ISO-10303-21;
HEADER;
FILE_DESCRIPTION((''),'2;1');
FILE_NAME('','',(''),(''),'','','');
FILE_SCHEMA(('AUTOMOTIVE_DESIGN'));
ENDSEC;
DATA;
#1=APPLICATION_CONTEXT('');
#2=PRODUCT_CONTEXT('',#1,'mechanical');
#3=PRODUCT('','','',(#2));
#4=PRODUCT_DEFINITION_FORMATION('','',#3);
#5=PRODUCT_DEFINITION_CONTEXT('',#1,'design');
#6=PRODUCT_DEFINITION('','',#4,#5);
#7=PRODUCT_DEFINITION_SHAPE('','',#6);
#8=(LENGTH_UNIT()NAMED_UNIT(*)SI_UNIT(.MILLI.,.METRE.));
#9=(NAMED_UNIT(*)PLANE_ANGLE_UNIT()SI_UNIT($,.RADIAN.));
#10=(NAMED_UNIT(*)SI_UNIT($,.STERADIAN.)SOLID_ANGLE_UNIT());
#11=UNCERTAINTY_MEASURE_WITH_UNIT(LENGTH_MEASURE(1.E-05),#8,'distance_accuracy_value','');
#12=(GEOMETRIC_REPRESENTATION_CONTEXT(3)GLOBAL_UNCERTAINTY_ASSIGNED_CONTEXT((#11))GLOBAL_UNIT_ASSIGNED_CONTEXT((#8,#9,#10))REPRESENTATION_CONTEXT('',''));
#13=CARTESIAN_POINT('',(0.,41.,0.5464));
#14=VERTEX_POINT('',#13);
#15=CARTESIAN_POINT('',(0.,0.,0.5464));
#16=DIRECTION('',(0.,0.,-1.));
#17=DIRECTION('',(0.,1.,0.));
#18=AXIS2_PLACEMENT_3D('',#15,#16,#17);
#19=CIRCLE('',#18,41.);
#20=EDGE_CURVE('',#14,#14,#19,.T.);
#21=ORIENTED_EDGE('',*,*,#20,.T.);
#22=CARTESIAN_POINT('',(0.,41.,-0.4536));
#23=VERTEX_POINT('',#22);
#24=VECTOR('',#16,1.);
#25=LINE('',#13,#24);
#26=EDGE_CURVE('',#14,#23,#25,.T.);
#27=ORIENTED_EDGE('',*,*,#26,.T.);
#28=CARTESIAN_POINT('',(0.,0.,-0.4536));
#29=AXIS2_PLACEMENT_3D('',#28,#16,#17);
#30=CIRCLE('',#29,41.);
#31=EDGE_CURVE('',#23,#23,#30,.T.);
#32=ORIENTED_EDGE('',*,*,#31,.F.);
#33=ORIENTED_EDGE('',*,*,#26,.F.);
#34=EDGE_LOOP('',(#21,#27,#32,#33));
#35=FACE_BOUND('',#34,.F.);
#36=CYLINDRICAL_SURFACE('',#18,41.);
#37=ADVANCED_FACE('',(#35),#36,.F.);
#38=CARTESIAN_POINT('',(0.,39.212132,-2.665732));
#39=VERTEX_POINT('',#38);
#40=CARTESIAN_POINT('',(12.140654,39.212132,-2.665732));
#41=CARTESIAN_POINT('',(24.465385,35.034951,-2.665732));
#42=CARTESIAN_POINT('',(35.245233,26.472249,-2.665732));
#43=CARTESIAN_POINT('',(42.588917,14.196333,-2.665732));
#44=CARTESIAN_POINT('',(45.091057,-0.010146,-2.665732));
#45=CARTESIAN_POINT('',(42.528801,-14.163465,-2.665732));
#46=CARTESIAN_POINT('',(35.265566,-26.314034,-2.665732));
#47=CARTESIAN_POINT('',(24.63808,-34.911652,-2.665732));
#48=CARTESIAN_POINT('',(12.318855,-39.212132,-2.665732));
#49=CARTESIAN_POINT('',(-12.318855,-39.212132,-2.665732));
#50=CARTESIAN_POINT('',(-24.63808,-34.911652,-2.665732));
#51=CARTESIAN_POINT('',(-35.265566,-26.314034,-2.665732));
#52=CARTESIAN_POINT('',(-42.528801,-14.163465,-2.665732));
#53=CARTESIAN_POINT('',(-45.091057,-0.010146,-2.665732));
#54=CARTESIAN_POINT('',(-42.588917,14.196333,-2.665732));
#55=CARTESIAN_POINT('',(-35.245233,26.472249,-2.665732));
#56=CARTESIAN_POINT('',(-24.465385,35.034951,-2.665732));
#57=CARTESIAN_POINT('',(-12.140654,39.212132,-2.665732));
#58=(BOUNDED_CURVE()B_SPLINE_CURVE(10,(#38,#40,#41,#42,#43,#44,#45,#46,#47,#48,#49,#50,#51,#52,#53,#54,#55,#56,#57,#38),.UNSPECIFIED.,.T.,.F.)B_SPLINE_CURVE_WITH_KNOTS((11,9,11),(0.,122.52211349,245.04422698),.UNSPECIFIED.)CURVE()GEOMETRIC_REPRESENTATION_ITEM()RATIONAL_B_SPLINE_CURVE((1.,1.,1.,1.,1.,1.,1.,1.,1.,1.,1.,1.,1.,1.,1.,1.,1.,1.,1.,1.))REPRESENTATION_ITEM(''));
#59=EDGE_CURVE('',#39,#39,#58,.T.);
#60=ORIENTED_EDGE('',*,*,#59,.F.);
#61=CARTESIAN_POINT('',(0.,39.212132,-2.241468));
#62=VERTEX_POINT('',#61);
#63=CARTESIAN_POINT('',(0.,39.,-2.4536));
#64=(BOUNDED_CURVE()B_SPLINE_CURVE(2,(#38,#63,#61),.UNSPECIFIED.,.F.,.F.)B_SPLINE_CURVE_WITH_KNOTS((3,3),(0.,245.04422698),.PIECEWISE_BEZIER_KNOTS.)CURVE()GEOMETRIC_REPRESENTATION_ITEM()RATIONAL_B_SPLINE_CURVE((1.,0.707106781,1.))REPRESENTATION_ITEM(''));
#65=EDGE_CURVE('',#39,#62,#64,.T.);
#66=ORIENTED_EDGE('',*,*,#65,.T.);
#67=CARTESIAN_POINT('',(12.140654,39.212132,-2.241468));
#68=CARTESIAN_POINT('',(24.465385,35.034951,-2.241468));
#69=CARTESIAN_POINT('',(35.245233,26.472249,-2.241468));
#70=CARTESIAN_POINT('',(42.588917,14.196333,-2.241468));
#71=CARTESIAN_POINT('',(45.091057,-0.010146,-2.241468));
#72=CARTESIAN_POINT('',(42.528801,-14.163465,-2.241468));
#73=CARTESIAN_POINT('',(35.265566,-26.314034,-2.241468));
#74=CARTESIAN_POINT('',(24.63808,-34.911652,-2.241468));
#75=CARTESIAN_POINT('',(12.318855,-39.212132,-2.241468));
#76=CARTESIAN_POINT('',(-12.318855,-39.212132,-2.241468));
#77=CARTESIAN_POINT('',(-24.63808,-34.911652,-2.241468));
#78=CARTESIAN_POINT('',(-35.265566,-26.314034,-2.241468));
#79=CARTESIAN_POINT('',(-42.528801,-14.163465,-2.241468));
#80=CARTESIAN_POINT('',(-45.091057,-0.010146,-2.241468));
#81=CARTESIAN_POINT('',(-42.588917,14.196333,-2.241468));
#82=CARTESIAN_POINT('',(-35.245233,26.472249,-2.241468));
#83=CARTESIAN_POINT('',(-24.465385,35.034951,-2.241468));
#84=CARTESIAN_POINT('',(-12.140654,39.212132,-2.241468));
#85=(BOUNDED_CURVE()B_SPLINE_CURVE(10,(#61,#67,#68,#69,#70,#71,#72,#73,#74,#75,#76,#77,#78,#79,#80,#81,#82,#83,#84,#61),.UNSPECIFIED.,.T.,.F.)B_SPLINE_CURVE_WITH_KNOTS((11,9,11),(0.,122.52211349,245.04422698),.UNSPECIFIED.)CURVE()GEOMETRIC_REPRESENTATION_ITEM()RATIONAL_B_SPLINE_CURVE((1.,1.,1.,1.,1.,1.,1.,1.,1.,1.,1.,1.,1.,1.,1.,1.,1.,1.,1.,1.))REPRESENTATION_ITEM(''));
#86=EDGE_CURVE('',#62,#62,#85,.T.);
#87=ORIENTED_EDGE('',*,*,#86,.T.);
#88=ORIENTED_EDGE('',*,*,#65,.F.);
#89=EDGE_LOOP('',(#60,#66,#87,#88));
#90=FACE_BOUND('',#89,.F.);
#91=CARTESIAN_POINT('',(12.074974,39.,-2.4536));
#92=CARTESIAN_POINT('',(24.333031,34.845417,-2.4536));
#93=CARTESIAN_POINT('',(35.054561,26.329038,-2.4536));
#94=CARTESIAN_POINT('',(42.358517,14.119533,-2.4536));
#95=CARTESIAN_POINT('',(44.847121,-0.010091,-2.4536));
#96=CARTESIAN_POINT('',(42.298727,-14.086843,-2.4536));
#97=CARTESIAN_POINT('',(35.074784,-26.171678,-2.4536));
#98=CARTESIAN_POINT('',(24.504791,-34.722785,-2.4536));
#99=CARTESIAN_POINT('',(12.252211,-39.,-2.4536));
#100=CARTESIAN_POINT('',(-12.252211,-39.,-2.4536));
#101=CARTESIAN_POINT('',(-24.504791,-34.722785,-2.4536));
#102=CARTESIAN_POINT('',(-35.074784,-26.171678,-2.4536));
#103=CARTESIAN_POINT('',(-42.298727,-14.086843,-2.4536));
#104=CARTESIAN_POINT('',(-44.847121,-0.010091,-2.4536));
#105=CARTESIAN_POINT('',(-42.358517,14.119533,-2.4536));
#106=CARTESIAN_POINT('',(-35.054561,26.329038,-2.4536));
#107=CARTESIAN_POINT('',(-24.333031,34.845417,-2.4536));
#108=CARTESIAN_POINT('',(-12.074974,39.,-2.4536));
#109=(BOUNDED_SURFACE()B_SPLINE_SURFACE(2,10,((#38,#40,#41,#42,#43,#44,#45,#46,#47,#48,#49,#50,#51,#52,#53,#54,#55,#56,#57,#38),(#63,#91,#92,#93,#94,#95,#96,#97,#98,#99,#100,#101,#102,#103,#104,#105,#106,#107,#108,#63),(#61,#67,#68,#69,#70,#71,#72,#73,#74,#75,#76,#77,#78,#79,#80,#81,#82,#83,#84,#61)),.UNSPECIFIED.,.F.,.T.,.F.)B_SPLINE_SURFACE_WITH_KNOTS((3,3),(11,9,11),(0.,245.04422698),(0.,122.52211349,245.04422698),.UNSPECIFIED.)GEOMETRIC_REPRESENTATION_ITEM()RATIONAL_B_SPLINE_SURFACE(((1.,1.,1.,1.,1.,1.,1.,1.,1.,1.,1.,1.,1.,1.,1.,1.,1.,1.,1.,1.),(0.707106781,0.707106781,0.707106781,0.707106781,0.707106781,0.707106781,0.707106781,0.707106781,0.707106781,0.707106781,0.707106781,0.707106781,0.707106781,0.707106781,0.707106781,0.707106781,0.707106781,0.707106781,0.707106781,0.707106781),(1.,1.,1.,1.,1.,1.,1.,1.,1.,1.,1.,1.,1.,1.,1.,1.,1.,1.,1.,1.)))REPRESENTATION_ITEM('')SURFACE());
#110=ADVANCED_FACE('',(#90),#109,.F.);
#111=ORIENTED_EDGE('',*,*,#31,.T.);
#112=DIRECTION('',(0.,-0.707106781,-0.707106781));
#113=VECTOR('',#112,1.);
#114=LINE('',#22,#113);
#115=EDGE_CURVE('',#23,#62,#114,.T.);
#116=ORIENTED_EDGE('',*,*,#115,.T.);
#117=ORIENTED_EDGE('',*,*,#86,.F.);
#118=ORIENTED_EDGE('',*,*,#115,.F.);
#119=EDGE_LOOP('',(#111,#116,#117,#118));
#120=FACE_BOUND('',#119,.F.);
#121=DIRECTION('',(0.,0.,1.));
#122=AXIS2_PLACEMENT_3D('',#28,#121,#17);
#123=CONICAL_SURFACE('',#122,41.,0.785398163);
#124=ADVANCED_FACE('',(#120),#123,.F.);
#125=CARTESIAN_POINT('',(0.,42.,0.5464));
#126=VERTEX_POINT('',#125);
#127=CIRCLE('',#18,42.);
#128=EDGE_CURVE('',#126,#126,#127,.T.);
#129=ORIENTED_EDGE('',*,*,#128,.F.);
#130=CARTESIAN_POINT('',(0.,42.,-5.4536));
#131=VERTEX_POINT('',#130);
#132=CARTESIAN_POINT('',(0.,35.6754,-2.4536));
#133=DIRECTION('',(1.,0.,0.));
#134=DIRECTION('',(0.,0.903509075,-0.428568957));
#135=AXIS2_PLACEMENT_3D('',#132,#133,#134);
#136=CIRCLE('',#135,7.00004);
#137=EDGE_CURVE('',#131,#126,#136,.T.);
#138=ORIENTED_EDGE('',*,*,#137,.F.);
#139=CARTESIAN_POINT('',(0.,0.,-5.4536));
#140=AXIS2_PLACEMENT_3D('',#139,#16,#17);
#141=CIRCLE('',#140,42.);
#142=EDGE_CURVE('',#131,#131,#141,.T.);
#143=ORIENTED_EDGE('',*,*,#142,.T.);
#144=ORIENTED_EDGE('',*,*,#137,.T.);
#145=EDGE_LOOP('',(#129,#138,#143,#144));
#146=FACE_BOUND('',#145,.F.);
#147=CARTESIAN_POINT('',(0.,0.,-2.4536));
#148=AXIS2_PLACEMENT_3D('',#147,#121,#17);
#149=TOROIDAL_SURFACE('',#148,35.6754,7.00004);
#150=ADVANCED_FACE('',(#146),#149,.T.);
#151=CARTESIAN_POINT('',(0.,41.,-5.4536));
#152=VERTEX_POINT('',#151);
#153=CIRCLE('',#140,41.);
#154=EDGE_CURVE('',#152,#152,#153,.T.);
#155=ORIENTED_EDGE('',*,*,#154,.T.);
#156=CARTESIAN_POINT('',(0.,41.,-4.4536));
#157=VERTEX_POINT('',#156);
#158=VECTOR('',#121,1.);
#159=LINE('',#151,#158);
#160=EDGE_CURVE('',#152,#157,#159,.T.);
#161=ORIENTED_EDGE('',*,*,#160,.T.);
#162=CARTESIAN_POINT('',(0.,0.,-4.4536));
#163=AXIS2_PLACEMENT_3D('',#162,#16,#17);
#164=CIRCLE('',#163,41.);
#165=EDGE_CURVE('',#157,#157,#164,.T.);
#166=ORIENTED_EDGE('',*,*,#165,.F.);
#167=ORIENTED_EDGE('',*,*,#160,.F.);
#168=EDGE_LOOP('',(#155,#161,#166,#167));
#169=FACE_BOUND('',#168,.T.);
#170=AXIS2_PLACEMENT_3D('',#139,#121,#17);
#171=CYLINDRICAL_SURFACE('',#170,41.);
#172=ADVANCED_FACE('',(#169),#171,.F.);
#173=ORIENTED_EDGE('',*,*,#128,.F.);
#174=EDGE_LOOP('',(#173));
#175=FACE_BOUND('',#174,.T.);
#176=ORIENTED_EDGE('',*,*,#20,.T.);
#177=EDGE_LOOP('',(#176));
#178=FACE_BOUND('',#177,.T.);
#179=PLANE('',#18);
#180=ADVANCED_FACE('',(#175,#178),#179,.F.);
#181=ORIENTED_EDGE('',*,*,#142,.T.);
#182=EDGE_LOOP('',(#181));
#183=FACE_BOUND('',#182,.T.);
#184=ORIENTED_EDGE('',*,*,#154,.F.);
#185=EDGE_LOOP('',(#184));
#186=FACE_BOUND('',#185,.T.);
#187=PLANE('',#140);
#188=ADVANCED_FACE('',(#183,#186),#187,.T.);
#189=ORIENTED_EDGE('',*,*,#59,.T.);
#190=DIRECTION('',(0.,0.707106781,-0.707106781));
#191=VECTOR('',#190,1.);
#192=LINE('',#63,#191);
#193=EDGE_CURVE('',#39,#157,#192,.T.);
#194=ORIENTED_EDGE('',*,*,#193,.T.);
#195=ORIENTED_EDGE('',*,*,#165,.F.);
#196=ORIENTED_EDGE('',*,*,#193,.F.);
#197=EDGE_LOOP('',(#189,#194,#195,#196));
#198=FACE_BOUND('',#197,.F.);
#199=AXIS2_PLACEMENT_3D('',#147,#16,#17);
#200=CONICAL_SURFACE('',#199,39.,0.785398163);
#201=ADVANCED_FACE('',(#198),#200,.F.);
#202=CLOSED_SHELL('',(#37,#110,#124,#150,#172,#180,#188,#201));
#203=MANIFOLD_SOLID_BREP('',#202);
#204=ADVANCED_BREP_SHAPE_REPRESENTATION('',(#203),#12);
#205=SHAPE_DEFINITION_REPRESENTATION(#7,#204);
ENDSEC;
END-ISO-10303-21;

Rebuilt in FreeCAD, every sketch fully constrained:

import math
import FreeCAD as App
import Part
import Sketcher
Q = App.Units.Quantity


def edges_at(feature, points):
    """Names of the edges that pass closest to the given points."""
    edges = feature.Shape.Edges
    near = lambda p: min(range(len(edges)), key=lambda i: edges[i].distToShape(Part.Vertex(*p))[0])
    return sorted({f"Edge{near(p) + 1}" for p in points})

doc = App.newDocument("Part")
params = doc.addObject("Spreadsheet::Sheet", "Params")
for row, (alias, value) in enumerate([
    ("sketch1_radius", "7 mm"),
    ("sketch1_width", "1 mm"),
    ("revolution_angle", "360 deg"),
    ("fillet_radius", "0.3 mm"),
], start=1):
    params.set(f"A{row}", alias)
    params.set(f"B{row}", "=" + value)
    params.setAlias(f"B{row}", alias)

body = doc.addObject("PartDesign::Body", "Body")

sketch1 = body.newObject("Sketcher::SketchObject", "Sketch")
sketch1.AttachmentSupport = (doc.getObject("YZ_Plane"), [""])
sketch1.MapMode = "FlatFace"
sketch1.addGeometry([
    Part.LineSegment(App.Vector(42, 0.5, 0), App.Vector(41, 0.5, 0)),
    Part.LineSegment(App.Vector(41, 0.5, 0), App.Vector(41, -0.5, 0)),
    Part.LineSegment(App.Vector(41, -0.5, 0), App.Vector(39, -2.5, 0)),
    Part.LineSegment(App.Vector(39, -2.5, 0), App.Vector(41, -4.5, 0)),
    Part.LineSegment(App.Vector(41, -4.5, 0), App.Vector(41, -5.5, 0)),
    Part.LineSegment(App.Vector(41, -5.5, 0), App.Vector(42, -5.5, 0)),
    Part.ArcOfCircle(Part.Circle(App.Vector(35.7, -2.5, 0), App.Vector(0, 0, 1), 7), math.radians(-25), math.radians(25)),
], False)
sketch1.addConstraint([
    Sketcher.Constraint("Coincident", 0, 2, 1, 1),
    Sketcher.Constraint("Coincident", 1, 2, 2, 1),
    Sketcher.Constraint("Coincident", 2, 2, 3, 1),
    Sketcher.Constraint("Coincident", 3, 2, 4, 1),
    Sketcher.Constraint("Coincident", 4, 2, 5, 1),
    Sketcher.Constraint("Coincident", 5, 2, 6, 1),
    Sketcher.Constraint("Coincident", 6, 2, 0, 1),
    Sketcher.Constraint("Horizontal", 0),
    Sketcher.Constraint("Vertical", 1),
    Sketcher.Constraint("Vertical", 4),
    Sketcher.Constraint("Horizontal", 5),
    Sketcher.Constraint("Perpendicular", 2, 3),
    Sketcher.Constraint("Horizontal", 6, 3, 2, 2),
    Sketcher.Constraint("Vertical", 1, 2, 3, 2),
    Sketcher.Constraint("Vertical", 5, 2, 6, 2),
    Sketcher.Constraint("Equal", 5, 1),
    Sketcher.Constraint("Equal", 1, 4),
    Sketcher.Constraint("Radius", 6, Q("7 mm")),
    Sketcher.Constraint("DistanceX", 0, 2, 0, 1, Q("1 mm")),
    Sketcher.Constraint("DistanceX", -1, 1, 0, 2, Q("41 mm")),
    Sketcher.Constraint("DistanceY", 4, 2, 0, 2, Q("6 mm")),
    Sketcher.Constraint("DistanceY", 6, 3, -1, 1, Q("2.4536 mm")),
])
sketch1.setExpression("Constraints[17]", "Params.sketch1_radius")
sketch1.setExpression("Constraints[18]", "Params.sketch1_width")
revolution = body.newObject("PartDesign::Revolution", "Revolution")
revolution.Profile = sketch1
revolution.ReferenceAxis = (sketch1, ["V_Axis"])
revolution.setExpression("Angle", "Params.revolution_angle")
doc.recompute()

fillet = body.newObject("PartDesign::Fillet", "Fillet")
fillet.Base = (revolution, edges_at(revolution, [(0, -39, -2.454)]))
fillet.setExpression("Radius", "Params.fillet_radius")

doc.recompute()
